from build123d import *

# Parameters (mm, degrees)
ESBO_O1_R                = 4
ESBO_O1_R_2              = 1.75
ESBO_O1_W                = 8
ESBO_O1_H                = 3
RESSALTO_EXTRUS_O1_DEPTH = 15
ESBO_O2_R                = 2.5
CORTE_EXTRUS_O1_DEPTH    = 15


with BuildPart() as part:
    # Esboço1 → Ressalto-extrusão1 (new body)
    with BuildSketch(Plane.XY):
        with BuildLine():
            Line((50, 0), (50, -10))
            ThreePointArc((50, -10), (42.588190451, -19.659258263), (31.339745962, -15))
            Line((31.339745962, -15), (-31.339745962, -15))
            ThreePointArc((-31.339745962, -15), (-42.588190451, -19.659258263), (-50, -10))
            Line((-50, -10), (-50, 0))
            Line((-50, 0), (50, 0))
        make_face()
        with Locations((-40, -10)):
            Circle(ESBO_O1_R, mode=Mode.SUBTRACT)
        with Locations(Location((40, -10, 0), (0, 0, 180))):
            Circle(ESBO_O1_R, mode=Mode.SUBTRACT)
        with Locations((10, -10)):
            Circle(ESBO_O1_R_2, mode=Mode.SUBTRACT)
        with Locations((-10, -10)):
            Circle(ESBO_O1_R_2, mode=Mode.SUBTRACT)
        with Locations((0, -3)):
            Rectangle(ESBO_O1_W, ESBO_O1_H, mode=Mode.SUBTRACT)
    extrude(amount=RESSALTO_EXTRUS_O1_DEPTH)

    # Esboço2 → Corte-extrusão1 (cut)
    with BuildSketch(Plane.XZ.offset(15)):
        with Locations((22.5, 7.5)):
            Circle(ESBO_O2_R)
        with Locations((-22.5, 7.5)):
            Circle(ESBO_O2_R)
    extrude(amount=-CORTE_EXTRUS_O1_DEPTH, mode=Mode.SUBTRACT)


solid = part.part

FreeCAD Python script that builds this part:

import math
import FreeCAD as App
import Part
import Sketcher


def add_polygon(sketch, points):
    """Adds a closed chain of lines whose ends are joined by coincident constraints."""
    first, n = sketch.GeometryCount, len(points)
    for a, b in zip(points, points[1:] + points[:1]):
        sketch.addGeometry(Part.LineSegment(App.Vector(*a, 0), App.Vector(*b, 0)), False)
    for i in range(n):
        sketch.addConstraint(Sketcher.Constraint("Coincident", first + i, 2, first + (i + 1) % n, 1))

doc = App.newDocument("Part")
body = doc.addObject("PartDesign::Body", "Body")

sketch1 = body.newObject("Sketcher::SketchObject", "Sketch")
sketch1.AttachmentSupport = (doc.getObject("XY_Plane"), [""])
sketch1.MapMode = "FlatFace"
sketch1.addGeometry(Part.LineSegment(App.Vector(50, -10, 0), App.Vector(50, 0, 0)), False)
sketch1.addGeometry(Part.LineSegment(App.Vector(50, 0, 0), App.Vector(-50, 0, 0)), False)
sketch1.addGeometry(Part.LineSegment(App.Vector(-50, 0, 0), App.Vector(-50, -10, 0)), False)
sketch1.addGeometry(Part.ArcOfCircle(Part.Circle(App.Vector(-40, -10, 0), App.Vector(0, 0, 1), 10), math.radians(180), math.radians(330)), False)
sketch1.addGeometry(Part.LineSegment(App.Vector(-31.3, -15, 0), App.Vector(31.3, -15, 0)), False)
sketch1.addGeometry(Part.ArcOfCircle(Part.Circle(App.Vector(40, -10, 0), App.Vector(0, 0, 1), 10), math.radians(-150), math.radians(0)), False)
sketch1.addGeometry(Part.Circle(App.Vector(40, -10, 0), App.Vector(0, 0, 1), 4), False)
sketch1.addGeometry(Part.Circle(App.Vector(10, -10, 0), App.Vector(0, 0, 1), 1.8), False)
sketch1.addGeometry(Part.Circle(App.Vector(-10, -10, 0), App.Vector(0, 0, 1), 1.8), False)
sketch1.addGeometry(Part.Circle(App.Vector(-40, -10, 0), App.Vector(0, 0, 1), 4), False)
add_polygon(sketch1, [(-4, -4.5), (-4, -1.5), (4, -1.5), (4, -4.5)])
sketch1.addConstraint([
    Sketcher.Constraint("Coincident", 0, 2, 1, 1),
    Sketcher.Constraint("Coincident", 1, 2, 2, 1),
    Sketcher.Constraint("Tangent", 2, 2, 3, 1),
    Sketcher.Constraint("Coincident", 3, 2, 4, 1),
    Sketcher.Constraint("Coincident", 4, 2, 5, 1),
    Sketcher.Constraint("Tangent", 5, 2, 0, 1),
    Sketcher.Constraint("Vertical", 0),
    Sketcher.Constraint("Horizontal", 1),
    Sketcher.Constraint("Vertical", 2),
    Sketcher.Constraint("Horizontal", 4),
    Sketcher.Constraint("Vertical", 10),
    Sketcher.Constraint("Horizontal", 11),
    Sketcher.Constraint("Vertical", 12),
    Sketcher.Constraint("Horizontal", 13),
    Sketcher.Constraint("Coincident", 6, 3, 5, 3),
    Sketcher.Constraint("Coincident", 9, 3, 3, 3),
    Sketcher.Constraint("Equal", 3, 5),
    Sketcher.Constraint("Equal", 7, 8),
    Sketcher.Constraint("Equal", 6, 9),
    Sketcher.Constraint("Symmetric", 0, 2, 1, 2, -1, 1),
    Sketcher.Constraint("Symmetric", 7, 3, 8, 3, -2),
    Sketcher.Constraint("Horizontal", 3, 3, 5, 3),
    Sketcher.Constraint("Horizontal", 6, 3, 7, 3),
    Sketcher.Constraint("Diameter", 6, 8.0),
    Sketcher.Constraint("Radius", 3, 10.0),
    Sketcher.Constraint("Diameter", 7, 3.5),
    Sketcher.Constraint("DistanceX", 1, 2, 1, 1, 100.0),
    Sketcher.Constraint("DistanceX", 11, 1, 11, 2, 8.0),
    Sketcher.Constraint("DistanceY", 0, 1, 0, 2, 10.0),
    Sketcher.Constraint("DistanceY", 10, 1, 10, 2, 3.0),
    Sketcher.Constraint("DistanceX", -1, 1, 7, 3, 10.0),
    Sketcher.Constraint("DistanceY", 3, 2, -1, 1, 15.0),
    Sketcher.Constraint("DistanceX", 10, 2, -1, 1, 4.0),
    Sketcher.Constraint("DistanceY", 10, 2, -1, 1, 1.5),
])
pad1 = body.newObject("PartDesign::Pad", "Pad")
pad1.Profile = sketch1
pad1.Length = 15

sketch2 = body.newObject("Sketcher::SketchObject", "Sketch001")
sketch2.AttachmentSupport = (doc.getObject("XZ_Plane"), [""])
sketch2.MapMode = "FlatFace"
sketch2.AttachmentOffset = App.Placement(App.Vector(0, 0, 15), App.Rotation())
sketch2.addGeometry([
    Part.Circle(App.Vector(22.5, 7.5, 0), App.Vector(0, 0, 1), 2.5),
    Part.Circle(App.Vector(-22.5, 7.5, 0), App.Vector(0, 0, 1), 2.5),
], False)
sketch2.addConstraint([
    Sketcher.Constraint("Equal", 0, 1),
    Sketcher.Constraint("Symmetric", 0, 3, 1, 3, -2),
    Sketcher.Constraint("Diameter", 0, 5.0),
    Sketcher.Constraint("DistanceX", 1, 3, 0, 3, 45.0),
    Sketcher.Constraint("DistanceY", -1, 1, 0, 3, 7.5),
])
pocket1 = body.newObject("PartDesign::Pocket", "Pocket")
pocket1.Profile = sketch2
pocket1.Length = 15

doc.recompute()
